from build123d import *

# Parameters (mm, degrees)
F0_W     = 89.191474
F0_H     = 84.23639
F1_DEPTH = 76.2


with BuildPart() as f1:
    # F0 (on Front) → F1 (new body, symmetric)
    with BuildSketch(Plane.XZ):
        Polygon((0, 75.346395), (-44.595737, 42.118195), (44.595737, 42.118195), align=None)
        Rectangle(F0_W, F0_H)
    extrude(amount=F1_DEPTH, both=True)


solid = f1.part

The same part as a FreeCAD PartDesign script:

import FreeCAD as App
import Part
import Sketcher
from FreeCAD import Vector
Q = App.Units.Quantity


def add_polygon(sketch, points):
    """Adds a closed chain of lines whose ends are joined by coincident constraints."""
    first, n = sketch.GeometryCount, len(points)
    for a, b in zip(points, points[1:] + points[:1]):
        sketch.addGeometry(Part.LineSegment(App.Vector(*a, 0), App.Vector(*b, 0)), False)
    for i in range(n):
        sketch.addConstraint(Sketcher.Constraint("Coincident", first + i, 2, first + (i + 1) % n, 1))

doc = App.newDocument("Part")
params = doc.addObject("Spreadsheet::Sheet", "Params")
for row, (alias, value) in enumerate([
    ("pad1_length", "6 in"),
], start=1):
    params.set(f"A{row}", alias)
    params.set(f"B{row}", "=" + value)
    params.setAlias(f"B{row}", alias)

body = doc.addObject("PartDesign::Body", "Body")

# Sketch on XZ plane
sketch1 = body.newObject("Sketcher::SketchObject", "Sketch")
sketch1.AttachmentSupport = (doc.getObject("XZ_Plane"), [""])
sketch1.MapMode = "FlatFace"
add_polygon(sketch1, [(0, 75.346395), (-44.595737, 42.118195), (-44.595737, -42.118195), (44.595737, -42.118195), (44.595737, 42.118195)])  # lines 0-4
sketch1.addConstraint([
    Sketcher.Constraint("Vertical", 1),
    Sketcher.Constraint("Horizontal", 2),
    Sketcher.Constraint("Vertical", 3),
    Sketcher.Constraint("Symmetric", 0, 2, 2, 2, -1, 1),
    Sketcher.Constraint("PointOnObject", 4, 2, -2),
    Sketcher.Constraint("Horizontal", 0, 2, 3, 2),
    Sketcher.Constraint("DistanceY", 1, 2, 1, 1, Q("84.23639 mm")),
    Sketcher.Constraint("DistanceY", 0, 2, 4, 2, Q("33.2282 mm")),
    Sketcher.Constraint("DistanceX", 2, 1, 2, 2, Q("89.191474 mm")),
])
pad1 = body.newObject("PartDesign::Pad", "Pad")
pad1.Profile = sketch1
pad1.setExpression("Length", "Params.pad1_length")
pad1.Midplane = True

doc.recompute()
